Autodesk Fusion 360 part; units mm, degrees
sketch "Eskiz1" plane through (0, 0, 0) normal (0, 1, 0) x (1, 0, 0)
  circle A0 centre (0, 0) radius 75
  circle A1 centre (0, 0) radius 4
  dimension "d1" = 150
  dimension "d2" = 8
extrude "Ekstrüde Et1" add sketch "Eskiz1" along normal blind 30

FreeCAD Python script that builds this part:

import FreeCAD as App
import Part
import Sketcher
Q = App.Units.Quantity

doc = App.newDocument("Part")
body = doc.addObject("PartDesign::Body", "Body")

# Sketch on XZ plane
sketch1 = body.newObject("Sketcher::SketchObject", "Sketch")
sketch1.AttachmentSupport = (doc.getObject("XZ_Plane"), [""])
sketch1.MapMode = "FlatFace"
sketch1.addGeometry(Part.Circle(App.Vector(0, 0, 0), App.Vector(0, 0, 1), 75), False)
sketch1.addGeometry(Part.Circle(App.Vector(0, 0, 0), App.Vector(0, 0, 1), 4), False)
sketch1.addConstraint(Sketcher.Constraint("Coincident", 0, 3, -1, 1))
sketch1.addConstraint(Sketcher.Constraint("Coincident", 1, 3, -1, 1))
sketch1.addConstraint(Sketcher.Constraint("Diameter", 0, Q("150 mm")))
sketch1.addConstraint(Sketcher.Constraint("Diameter", 1, Q("8 mm")))
pad1 = body.newObject("PartDesign::Pad", "Pad")
pad1.Profile = sketch1
pad1.Length = 30
pad1.Reversed = True

doc.recompute()
